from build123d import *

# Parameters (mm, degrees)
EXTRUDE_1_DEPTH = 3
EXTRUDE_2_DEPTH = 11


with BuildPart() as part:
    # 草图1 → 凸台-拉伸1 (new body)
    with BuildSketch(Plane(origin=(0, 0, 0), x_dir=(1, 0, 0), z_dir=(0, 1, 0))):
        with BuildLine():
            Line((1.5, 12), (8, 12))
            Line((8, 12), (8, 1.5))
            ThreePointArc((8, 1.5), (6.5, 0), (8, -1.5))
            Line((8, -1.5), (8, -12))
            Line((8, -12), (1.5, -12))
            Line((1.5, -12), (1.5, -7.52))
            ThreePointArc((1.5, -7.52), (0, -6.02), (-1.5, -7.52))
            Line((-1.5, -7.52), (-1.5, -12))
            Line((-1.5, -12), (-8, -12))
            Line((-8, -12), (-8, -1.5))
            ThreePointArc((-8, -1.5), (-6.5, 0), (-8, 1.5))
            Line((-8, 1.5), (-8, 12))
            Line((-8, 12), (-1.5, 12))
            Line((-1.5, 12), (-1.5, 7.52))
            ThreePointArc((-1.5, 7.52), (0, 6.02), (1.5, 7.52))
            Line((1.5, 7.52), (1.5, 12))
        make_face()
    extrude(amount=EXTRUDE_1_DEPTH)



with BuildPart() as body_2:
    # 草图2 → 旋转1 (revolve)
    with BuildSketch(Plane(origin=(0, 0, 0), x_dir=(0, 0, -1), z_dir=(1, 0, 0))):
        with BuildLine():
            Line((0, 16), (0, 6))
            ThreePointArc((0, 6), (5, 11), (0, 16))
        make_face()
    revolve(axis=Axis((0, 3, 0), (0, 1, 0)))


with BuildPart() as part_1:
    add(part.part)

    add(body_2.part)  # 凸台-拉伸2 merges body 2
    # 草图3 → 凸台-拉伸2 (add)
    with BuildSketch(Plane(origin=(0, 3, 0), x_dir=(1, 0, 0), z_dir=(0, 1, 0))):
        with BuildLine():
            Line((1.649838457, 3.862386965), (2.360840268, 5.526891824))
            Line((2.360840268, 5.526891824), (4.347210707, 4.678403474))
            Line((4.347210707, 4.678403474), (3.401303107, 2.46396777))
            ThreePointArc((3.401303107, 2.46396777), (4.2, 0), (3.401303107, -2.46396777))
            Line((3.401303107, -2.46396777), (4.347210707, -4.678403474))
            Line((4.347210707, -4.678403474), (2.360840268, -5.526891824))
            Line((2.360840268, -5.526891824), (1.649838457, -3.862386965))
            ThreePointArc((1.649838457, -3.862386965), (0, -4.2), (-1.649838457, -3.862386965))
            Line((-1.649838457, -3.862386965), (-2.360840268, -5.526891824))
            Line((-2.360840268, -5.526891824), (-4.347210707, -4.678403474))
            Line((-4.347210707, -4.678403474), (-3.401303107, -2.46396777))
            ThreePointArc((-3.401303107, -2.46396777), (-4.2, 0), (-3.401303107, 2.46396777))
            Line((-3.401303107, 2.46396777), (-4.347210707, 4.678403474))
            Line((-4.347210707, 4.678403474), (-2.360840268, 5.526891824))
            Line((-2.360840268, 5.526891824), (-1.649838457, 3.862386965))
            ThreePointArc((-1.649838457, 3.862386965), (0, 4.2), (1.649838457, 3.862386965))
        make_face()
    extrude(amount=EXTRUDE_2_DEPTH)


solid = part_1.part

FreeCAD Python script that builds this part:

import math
import FreeCAD as App
import Part
import Sketcher
Q = App.Units.Quantity

doc = App.newDocument("Part")
body = doc.addObject("PartDesign::Body", "Body")

sketch1 = body.newObject("Sketcher::SketchObject", "Sketch")
sketch1.AttachmentSupport = (doc.getObject("XZ_Plane"), [""])
sketch1.MapMode = "FlatFace"
sketch1.addGeometry(Part.LineSegment(App.Vector(8, -12, 0), App.Vector(1.5, -12, 0)), False)
sketch1.addGeometry(Part.LineSegment(App.Vector(1.5, -12, 0), App.Vector(1.5, -7.52, 0)), False)
sketch1.addGeometry(Part.ArcOfCircle(Part.Circle(App.Vector(0, -7.52, 0), App.Vector(0, 0, 1), 1.5), math.radians(0), math.radians(180)), False)
sketch1.addGeometry(Part.LineSegment(App.Vector(-1.5, -7.52, 0), App.Vector(-1.5, -12, 0)), False)
sketch1.addGeometry(Part.LineSegment(App.Vector(-1.5, -12, 0), App.Vector(-8, -12, 0)), False)
sketch1.addGeometry(Part.LineSegment(App.Vector(-8, -12, 0), App.Vector(-8, -1.5, 0)), False)
sketch1.addGeometry(Part.ArcOfCircle(Part.Circle(App.Vector(-8, 0, 0), App.Vector(0, 0, 1), 1.5), math.radians(-90), math.radians(90)), False)
sketch1.addGeometry(Part.LineSegment(App.Vector(-8, 1.5, 0), App.Vector(-8, 12, 0)), False)
sketch1.addGeometry(Part.LineSegment(App.Vector(-8, 12, 0), App.Vector(-1.5, 12, 0)), False)
sketch1.addGeometry(Part.LineSegment(App.Vector(-1.5, 12, 0), App.Vector(-1.5, 7.52, 0)), False)
sketch1.addGeometry(Part.ArcOfCircle(Part.Circle(App.Vector(0, 7.52, 0), App.Vector(0, 0, 1), 1.5), math.radians(180), math.radians(360)), False)
sketch1.addGeometry(Part.LineSegment(App.Vector(1.5, 7.52, 0), App.Vector(1.5, 12, 0)), False)
sketch1.addGeometry(Part.LineSegment(App.Vector(1.5, 12, 0), App.Vector(8, 12, 0)), False)
sketch1.addGeometry(Part.LineSegment(App.Vector(8, 12, 0), App.Vector(8, 1.5, 0)), False)
sketch1.addGeometry(Part.ArcOfCircle(Part.Circle(App.Vector(8, 0, 0), App.Vector(0, 0, 1), 1.5), math.radians(90), math.radians(270)), False)
sketch1.addGeometry(Part.LineSegment(App.Vector(8, -1.5, 0), App.Vector(8, -12, 0)), False)
sketch1.addConstraint(Sketcher.Constraint("Coincident", 0, 2, 1, 1))
sketch1.addConstraint(Sketcher.Constraint("Tangent", 1, 2, 2, 1))
sketch1.addConstraint(Sketcher.Constraint("Tangent", 2, 2, 3, 1))
sketch1.addConstraint(Sketcher.Constraint("Coincident", 3, 2, 4, 1))
sketch1.addConstraint(Sketcher.Constraint("Coincident", 4, 2, 5, 1))
sketch1.addConstraint(Sketcher.Constraint("Coincident", 5, 2, 6, 1))
sketch1.addConstraint(Sketcher.Constraint("Coincident", 6, 2, 7, 1))
sketch1.addConstraint(Sketcher.Constraint("Coincident", 7, 2, 8, 1))
sketch1.addConstraint(Sketcher.Constraint("Coincident", 8, 2, 9, 1))
sketch1.addConstraint(Sketcher.Constraint("Tangent", 9, 2, 10, 1))
sketch1.addConstraint(Sketcher.Constraint("Tangent", 10, 2, 11, 1))
sketch1.addConstraint(Sketcher.Constraint("Coincident", 11, 2, 12, 1))
sketch1.addConstraint(Sketcher.Constraint("Coincident", 12, 2, 13, 1))
sketch1.addConstraint(Sketcher.Constraint("Coincident", 13, 2, 14, 1))
sketch1.addConstraint(Sketcher.Constraint("Coincident", 14, 2, 15, 1))
sketch1.addConstraint(Sketcher.Constraint("Coincident", 15, 2, 0, 1))
sketch1.addConstraint(Sketcher.Constraint("Horizontal", 0))
sketch1.addConstraint(Sketcher.Constraint("Vertical", 1))
sketch1.addConstraint(Sketcher.Constraint("Vertical", 3))
sketch1.addConstraint(Sketcher.Constraint("Horizontal", 4))
sketch1.addConstraint(Sketcher.Constraint("Vertical", 5))
sketch1.addConstraint(Sketcher.Constraint("Vertical", 7))
sketch1.addConstraint(Sketcher.Constraint("Horizontal", 8))
sketch1.addConstraint(Sketcher.Constraint("Vertical", 9))
sketch1.addConstraint(Sketcher.Constraint("Vertical", 11))
sketch1.addConstraint(Sketcher.Constraint("Horizontal", 12))
sketch1.addConstraint(Sketcher.Constraint("Vertical", 13))
sketch1.addConstraint(Sketcher.Constraint("Vertical", 15))
sketch1.addConstraint(Sketcher.Constraint("Equal", 2, 6))
sketch1.addConstraint(Sketcher.Constraint("Equal", 6, 10))
sketch1.addConstraint(Sketcher.Constraint("Equal", 10, 14))
sketch1.addConstraint(Sketcher.Constraint("Symmetric", 2, 3, 10, 3, -1, 1))
sketch1.addConstraint(Sketcher.Constraint("Symmetric", 6, 3, 14, 3, -1, 1))
sketch1.addConstraint(Sketcher.Constraint("Symmetric", 4, 2, 12, 2, -1, 1))
sketch1.addConstraint(Sketcher.Constraint("Symmetric", 7, 2, 15, 2, -1, 1))
sketch1.addConstraint(Sketcher.Constraint("Symmetric", 0, 2, 3, 2, -2))
sketch1.addConstraint(Sketcher.Constraint("Symmetric", 6, 2, 13, 2, -2))
sketch1.addConstraint(Sketcher.Constraint("Vertical", 6, 3, 4, 2))
sketch1.addConstraint(Sketcher.Constraint("Radius", 2, Q("1.5 mm")))
sketch1.addConstraint(Sketcher.Constraint("DistanceX", 0, 2, 0, 1, Q("6.5 mm")))
sketch1.addConstraint(Sketcher.Constraint("DistanceY", 5, 1, 5, 2, Q("10.5 mm")))
sketch1.addConstraint(Sketcher.Constraint("DistanceY", 1, 1, 1, 2, Q("4.48 mm")))
pad1 = body.newObject("PartDesign::Pad", "Pad")
pad1.Profile = sketch1
pad1.Length = 3
pad1.Reversed = True
body2 = doc.addObject("PartDesign::Body", "Body001")

sketch2 = body2.newObject("Sketcher::SketchObject", "Sketch001")
sketch2.AttachmentSupport = (doc.getObject("YZ_Plane001"), [""])
sketch2.MapMode = "FlatFace"
sketch2.addGeometry(Part.LineSegment(App.Vector(16, 0, 0), App.Vector(6, 0, 0)), False)
sketch2.addGeometry(Part.ArcOfCircle(Part.Circle(App.Vector(11, 0, 0), App.Vector(0, 0, 1), 5), math.radians(180), math.radians(360)), False)
sketch2.addConstraint(Sketcher.Constraint("Coincident", 0, 1, 1, 2))
sketch2.addConstraint(Sketcher.Constraint("Coincident", 1, 1, 0, 2))
sketch2.addConstraint(Sketcher.Constraint("Horizontal", 0))
sketch2.addConstraint(Sketcher.Constraint("PointOnObject", 1, 3, -1))
sketch2.addConstraint(Sketcher.Constraint("PointOnObject", 0, 1, -1))
sketch2.addConstraint(Sketcher.Constraint("Radius", 1, Q("5 mm")))
sketch2.addConstraint(Sketcher.Constraint("DistanceX", -1, 1, 1, 3, Q("11 mm")))
revolution = body2.newObject("PartDesign::Revolution", "Revolution")
revolution.Profile = sketch2
revolution.ReferenceAxis = (sketch2, ["H_Axis"])
revolution.Angle = 360
body.AllowCompound = True
doc.recompute()

boolean = body.newObject("PartDesign::Boolean", "Boolean")
boolean.Type = "Fuse"
boolean.addObjects([body2])

sketch3 = body.newObject("Sketcher::SketchObject", "Sketch002")
sketch3.AttachmentSupport = (doc.getObject("XZ_Plane"), [""])
sketch3.MapMode = "FlatFace"
sketch3.AttachmentOffset = App.Placement(App.Vector(0, 0, -3), App.Rotation())
sketch3.addGeometry(Part.LineSegment(App.Vector(2.36084, -5.526892, 0), App.Vector(1.649838, -3.862387, 0)), False)
sketch3.addGeometry(Part.ArcOfCircle(Part.Circle(App.Vector(0, 0, 0), App.Vector(0, 0, 1), 4.2), math.radians(-113.13), math.radians(-66.87)), False)
sketch3.addGeometry(Part.LineSegment(App.Vector(-1.649838, -3.862387, 0), App.Vector(-2.36084, -5.526892, 0)), False)
sketch3.addGeometry(Part.LineSegment(App.Vector(-2.36084, -5.526892, 0), App.Vector(-4.347211, -4.678403, 0)), False)
sketch3.addGeometry(Part.LineSegment(App.Vector(-4.347211, -4.678403, 0), App.Vector(-3.401303, -2.463968, 0)), False)
sketch3.addGeometry(Part.ArcOfCircle(Part.Circle(App.Vector(0, 0, 0), App.Vector(0, 0, 1), 4.2), math.radians(144.079723), math.radians(215.920277)), False)
sketch3.addGeometry(Part.LineSegment(App.Vector(-3.401303, 2.463968, 0), App.Vector(-4.347211, 4.678403, 0)), False)
sketch3.addGeometry(Part.LineSegment(App.Vector(-4.347211, 4.678403, 0), App.Vector(-2.36084, 5.526892, 0)), False)
sketch3.addGeometry(Part.LineSegment(App.Vector(-2.36084, 5.526892, 0), App.Vector(-1.649838, 3.862387, 0)), False)
sketch3.addGeometry(Part.ArcOfCircle(Part.Circle(App.Vector(0, 0, 0), App.Vector(0, 0, 1), 4.2), math.radians(66.87), math.radians(113.13)), False)
sketch3.addGeometry(Part.LineSegment(App.Vector(1.649838, 3.862387, 0), App.Vector(2.36084, 5.526892, 0)), False)
sketch3.addGeometry(Part.LineSegment(App.Vector(2.36084, 5.526892, 0), App.Vector(4.347211, 4.678403, 0)), False)
sketch3.addGeometry(Part.LineSegment(App.Vector(4.347211, 4.678403, 0), App.Vector(3.401303, 2.463968, 0)), False)
sketch3.addGeometry(Part.ArcOfCircle(Part.Circle(App.Vector(0, 0, 0), App.Vector(0, 0, 1), 4.2), math.radians(-35.920277), math.radians(35.920277)), False)
sketch3.addGeometry(Part.LineSegment(App.Vector(3.401303, -2.463968, 0), App.Vector(4.347211, -4.678403, 0)), False)
sketch3.addGeometry(Part.LineSegment(App.Vector(4.347211, -4.678403, 0), App.Vector(2.36084, -5.526892, 0)), False)
sketch3.addConstraint(Sketcher.Constraint("Coincident", 0, 2, 1, 2))
sketch3.addConstraint(Sketcher.Constraint("Coincident", 1, 1, 2, 1))
sketch3.addConstraint(Sketcher.Constraint("Coincident", 2, 2, 3, 1))
sketch3.addConstraint(Sketcher.Constraint("Coincident", 3, 2, 4, 1))
sketch3.addConstraint(Sketcher.Constraint("Coincident", 4, 2, 5, 2))
sketch3.addConstraint(Sketcher.Constraint("Coincident", 5, 1, 6, 1))
sketch3.addConstraint(Sketcher.Constraint("Coincident", 6, 2, 7, 1))
sketch3.addConstraint(Sketcher.Constraint("Coincident", 7, 2, 8, 1))
sketch3.addConstraint(Sketcher.Constraint("Coincident", 8, 2, 9, 2))
sketch3.addConstraint(Sketcher.Constraint("Coincident", 9, 1, 10, 1))
sketch3.addConstraint(Sketcher.Constraint("Coincident", 10, 2, 11, 1))
sketch3.addConstraint(Sketcher.Constraint("Coincident", 11, 2, 12, 1))
sketch3.addConstraint(Sketcher.Constraint("Coincident", 12, 2, 13, 2))
sketch3.addConstraint(Sketcher.Constraint("Coincident", 13, 1, 14, 1))
sketch3.addConstraint(Sketcher.Constraint("Coincident", 14, 2, 15, 1))
sketch3.addConstraint(Sketcher.Constraint("Coincident", 15, 2, 0, 1))
sketch3.addConstraint(Sketcher.Constraint("Coincident", 1, 3, -1, 1))
sketch3.addConstraint(Sketcher.Constraint("Coincident", 5, 3, -1, 1))
sketch3.addConstraint(Sketcher.Constraint("Coincident", 9, 3, -1, 1))
sketch3.addConstraint(Sketcher.Constraint("Coincident", 13, 3, -1, 1))
sketch3.addConstraint(Sketcher.Constraint("Equal", 1, 5))
sketch3.addConstraint(Sketcher.Constraint("Equal", 5, 9))
sketch3.addConstraint(Sketcher.Constraint("Equal", 9, 13))
sketch3.addConstraint(Sketcher.Constraint("Symmetric", 2, 2, 10, 2, -1, 1))
sketch3.addConstraint(Sketcher.Constraint("Symmetric", 3, 2, 11, 2, -1, 1))
sketch3.addConstraint(Sketcher.Constraint("Symmetric", 6, 2, 14, 2, -1, 1))
sketch3.addConstraint(Sketcher.Constraint("Symmetric", 7, 2, 15, 2, -1, 1))
sketch3.addConstraint(Sketcher.Constraint("Symmetric", 7, 2, 10, 2, -2))
sketch3.addConstraint(Sketcher.Constraint("Symmetric", 6, 2, 11, 2, -2))
sketch3.addConstraint(Sketcher.Constraint("Perpendicular", 2, 3))
sketch3.addConstraint(Sketcher.Constraint("Perpendicular", 3, 4))
sketch3.addConstraint(Sketcher.Constraint("Parallel", 0, 6))
sketch3.addConstraint(Sketcher.Constraint("Perpendicular", 6, 7))
sketch3.addConstraint(Sketcher.Constraint("Perpendicular", 7, 8))
sketch3.addConstraint(Sketcher.Constraint("Parallel", 4, 10))
sketch3.addConstraint(Sketcher.Constraint("Perpendicular", 11, 12))
sketch3.addConstraint(Sketcher.Constraint("Parallel", 8, 14))
sketch3.addConstraint(Sketcher.Constraint("Radius", 1, Q("4.2 mm")))
sketch3.addConstraint(Sketcher.Constraint("Angle", 0, Q("113.13 deg")))
sketch3.addConstraint(Sketcher.Constraint("Distance", 0, Q("1.81 mm")))
sketch3.addConstraint(Sketcher.Constraint("Distance", 3, Q("2.16 mm")))
sketch3.addConstraint(Sketcher.Constraint("Distance", 4, Q("2.408001 mm")))
pad2 = body.newObject("PartDesign::Pad", "Pad001")
pad2.Profile = sketch3
pad2.Length = 11
pad2.Reversed = True

doc.recompute()
